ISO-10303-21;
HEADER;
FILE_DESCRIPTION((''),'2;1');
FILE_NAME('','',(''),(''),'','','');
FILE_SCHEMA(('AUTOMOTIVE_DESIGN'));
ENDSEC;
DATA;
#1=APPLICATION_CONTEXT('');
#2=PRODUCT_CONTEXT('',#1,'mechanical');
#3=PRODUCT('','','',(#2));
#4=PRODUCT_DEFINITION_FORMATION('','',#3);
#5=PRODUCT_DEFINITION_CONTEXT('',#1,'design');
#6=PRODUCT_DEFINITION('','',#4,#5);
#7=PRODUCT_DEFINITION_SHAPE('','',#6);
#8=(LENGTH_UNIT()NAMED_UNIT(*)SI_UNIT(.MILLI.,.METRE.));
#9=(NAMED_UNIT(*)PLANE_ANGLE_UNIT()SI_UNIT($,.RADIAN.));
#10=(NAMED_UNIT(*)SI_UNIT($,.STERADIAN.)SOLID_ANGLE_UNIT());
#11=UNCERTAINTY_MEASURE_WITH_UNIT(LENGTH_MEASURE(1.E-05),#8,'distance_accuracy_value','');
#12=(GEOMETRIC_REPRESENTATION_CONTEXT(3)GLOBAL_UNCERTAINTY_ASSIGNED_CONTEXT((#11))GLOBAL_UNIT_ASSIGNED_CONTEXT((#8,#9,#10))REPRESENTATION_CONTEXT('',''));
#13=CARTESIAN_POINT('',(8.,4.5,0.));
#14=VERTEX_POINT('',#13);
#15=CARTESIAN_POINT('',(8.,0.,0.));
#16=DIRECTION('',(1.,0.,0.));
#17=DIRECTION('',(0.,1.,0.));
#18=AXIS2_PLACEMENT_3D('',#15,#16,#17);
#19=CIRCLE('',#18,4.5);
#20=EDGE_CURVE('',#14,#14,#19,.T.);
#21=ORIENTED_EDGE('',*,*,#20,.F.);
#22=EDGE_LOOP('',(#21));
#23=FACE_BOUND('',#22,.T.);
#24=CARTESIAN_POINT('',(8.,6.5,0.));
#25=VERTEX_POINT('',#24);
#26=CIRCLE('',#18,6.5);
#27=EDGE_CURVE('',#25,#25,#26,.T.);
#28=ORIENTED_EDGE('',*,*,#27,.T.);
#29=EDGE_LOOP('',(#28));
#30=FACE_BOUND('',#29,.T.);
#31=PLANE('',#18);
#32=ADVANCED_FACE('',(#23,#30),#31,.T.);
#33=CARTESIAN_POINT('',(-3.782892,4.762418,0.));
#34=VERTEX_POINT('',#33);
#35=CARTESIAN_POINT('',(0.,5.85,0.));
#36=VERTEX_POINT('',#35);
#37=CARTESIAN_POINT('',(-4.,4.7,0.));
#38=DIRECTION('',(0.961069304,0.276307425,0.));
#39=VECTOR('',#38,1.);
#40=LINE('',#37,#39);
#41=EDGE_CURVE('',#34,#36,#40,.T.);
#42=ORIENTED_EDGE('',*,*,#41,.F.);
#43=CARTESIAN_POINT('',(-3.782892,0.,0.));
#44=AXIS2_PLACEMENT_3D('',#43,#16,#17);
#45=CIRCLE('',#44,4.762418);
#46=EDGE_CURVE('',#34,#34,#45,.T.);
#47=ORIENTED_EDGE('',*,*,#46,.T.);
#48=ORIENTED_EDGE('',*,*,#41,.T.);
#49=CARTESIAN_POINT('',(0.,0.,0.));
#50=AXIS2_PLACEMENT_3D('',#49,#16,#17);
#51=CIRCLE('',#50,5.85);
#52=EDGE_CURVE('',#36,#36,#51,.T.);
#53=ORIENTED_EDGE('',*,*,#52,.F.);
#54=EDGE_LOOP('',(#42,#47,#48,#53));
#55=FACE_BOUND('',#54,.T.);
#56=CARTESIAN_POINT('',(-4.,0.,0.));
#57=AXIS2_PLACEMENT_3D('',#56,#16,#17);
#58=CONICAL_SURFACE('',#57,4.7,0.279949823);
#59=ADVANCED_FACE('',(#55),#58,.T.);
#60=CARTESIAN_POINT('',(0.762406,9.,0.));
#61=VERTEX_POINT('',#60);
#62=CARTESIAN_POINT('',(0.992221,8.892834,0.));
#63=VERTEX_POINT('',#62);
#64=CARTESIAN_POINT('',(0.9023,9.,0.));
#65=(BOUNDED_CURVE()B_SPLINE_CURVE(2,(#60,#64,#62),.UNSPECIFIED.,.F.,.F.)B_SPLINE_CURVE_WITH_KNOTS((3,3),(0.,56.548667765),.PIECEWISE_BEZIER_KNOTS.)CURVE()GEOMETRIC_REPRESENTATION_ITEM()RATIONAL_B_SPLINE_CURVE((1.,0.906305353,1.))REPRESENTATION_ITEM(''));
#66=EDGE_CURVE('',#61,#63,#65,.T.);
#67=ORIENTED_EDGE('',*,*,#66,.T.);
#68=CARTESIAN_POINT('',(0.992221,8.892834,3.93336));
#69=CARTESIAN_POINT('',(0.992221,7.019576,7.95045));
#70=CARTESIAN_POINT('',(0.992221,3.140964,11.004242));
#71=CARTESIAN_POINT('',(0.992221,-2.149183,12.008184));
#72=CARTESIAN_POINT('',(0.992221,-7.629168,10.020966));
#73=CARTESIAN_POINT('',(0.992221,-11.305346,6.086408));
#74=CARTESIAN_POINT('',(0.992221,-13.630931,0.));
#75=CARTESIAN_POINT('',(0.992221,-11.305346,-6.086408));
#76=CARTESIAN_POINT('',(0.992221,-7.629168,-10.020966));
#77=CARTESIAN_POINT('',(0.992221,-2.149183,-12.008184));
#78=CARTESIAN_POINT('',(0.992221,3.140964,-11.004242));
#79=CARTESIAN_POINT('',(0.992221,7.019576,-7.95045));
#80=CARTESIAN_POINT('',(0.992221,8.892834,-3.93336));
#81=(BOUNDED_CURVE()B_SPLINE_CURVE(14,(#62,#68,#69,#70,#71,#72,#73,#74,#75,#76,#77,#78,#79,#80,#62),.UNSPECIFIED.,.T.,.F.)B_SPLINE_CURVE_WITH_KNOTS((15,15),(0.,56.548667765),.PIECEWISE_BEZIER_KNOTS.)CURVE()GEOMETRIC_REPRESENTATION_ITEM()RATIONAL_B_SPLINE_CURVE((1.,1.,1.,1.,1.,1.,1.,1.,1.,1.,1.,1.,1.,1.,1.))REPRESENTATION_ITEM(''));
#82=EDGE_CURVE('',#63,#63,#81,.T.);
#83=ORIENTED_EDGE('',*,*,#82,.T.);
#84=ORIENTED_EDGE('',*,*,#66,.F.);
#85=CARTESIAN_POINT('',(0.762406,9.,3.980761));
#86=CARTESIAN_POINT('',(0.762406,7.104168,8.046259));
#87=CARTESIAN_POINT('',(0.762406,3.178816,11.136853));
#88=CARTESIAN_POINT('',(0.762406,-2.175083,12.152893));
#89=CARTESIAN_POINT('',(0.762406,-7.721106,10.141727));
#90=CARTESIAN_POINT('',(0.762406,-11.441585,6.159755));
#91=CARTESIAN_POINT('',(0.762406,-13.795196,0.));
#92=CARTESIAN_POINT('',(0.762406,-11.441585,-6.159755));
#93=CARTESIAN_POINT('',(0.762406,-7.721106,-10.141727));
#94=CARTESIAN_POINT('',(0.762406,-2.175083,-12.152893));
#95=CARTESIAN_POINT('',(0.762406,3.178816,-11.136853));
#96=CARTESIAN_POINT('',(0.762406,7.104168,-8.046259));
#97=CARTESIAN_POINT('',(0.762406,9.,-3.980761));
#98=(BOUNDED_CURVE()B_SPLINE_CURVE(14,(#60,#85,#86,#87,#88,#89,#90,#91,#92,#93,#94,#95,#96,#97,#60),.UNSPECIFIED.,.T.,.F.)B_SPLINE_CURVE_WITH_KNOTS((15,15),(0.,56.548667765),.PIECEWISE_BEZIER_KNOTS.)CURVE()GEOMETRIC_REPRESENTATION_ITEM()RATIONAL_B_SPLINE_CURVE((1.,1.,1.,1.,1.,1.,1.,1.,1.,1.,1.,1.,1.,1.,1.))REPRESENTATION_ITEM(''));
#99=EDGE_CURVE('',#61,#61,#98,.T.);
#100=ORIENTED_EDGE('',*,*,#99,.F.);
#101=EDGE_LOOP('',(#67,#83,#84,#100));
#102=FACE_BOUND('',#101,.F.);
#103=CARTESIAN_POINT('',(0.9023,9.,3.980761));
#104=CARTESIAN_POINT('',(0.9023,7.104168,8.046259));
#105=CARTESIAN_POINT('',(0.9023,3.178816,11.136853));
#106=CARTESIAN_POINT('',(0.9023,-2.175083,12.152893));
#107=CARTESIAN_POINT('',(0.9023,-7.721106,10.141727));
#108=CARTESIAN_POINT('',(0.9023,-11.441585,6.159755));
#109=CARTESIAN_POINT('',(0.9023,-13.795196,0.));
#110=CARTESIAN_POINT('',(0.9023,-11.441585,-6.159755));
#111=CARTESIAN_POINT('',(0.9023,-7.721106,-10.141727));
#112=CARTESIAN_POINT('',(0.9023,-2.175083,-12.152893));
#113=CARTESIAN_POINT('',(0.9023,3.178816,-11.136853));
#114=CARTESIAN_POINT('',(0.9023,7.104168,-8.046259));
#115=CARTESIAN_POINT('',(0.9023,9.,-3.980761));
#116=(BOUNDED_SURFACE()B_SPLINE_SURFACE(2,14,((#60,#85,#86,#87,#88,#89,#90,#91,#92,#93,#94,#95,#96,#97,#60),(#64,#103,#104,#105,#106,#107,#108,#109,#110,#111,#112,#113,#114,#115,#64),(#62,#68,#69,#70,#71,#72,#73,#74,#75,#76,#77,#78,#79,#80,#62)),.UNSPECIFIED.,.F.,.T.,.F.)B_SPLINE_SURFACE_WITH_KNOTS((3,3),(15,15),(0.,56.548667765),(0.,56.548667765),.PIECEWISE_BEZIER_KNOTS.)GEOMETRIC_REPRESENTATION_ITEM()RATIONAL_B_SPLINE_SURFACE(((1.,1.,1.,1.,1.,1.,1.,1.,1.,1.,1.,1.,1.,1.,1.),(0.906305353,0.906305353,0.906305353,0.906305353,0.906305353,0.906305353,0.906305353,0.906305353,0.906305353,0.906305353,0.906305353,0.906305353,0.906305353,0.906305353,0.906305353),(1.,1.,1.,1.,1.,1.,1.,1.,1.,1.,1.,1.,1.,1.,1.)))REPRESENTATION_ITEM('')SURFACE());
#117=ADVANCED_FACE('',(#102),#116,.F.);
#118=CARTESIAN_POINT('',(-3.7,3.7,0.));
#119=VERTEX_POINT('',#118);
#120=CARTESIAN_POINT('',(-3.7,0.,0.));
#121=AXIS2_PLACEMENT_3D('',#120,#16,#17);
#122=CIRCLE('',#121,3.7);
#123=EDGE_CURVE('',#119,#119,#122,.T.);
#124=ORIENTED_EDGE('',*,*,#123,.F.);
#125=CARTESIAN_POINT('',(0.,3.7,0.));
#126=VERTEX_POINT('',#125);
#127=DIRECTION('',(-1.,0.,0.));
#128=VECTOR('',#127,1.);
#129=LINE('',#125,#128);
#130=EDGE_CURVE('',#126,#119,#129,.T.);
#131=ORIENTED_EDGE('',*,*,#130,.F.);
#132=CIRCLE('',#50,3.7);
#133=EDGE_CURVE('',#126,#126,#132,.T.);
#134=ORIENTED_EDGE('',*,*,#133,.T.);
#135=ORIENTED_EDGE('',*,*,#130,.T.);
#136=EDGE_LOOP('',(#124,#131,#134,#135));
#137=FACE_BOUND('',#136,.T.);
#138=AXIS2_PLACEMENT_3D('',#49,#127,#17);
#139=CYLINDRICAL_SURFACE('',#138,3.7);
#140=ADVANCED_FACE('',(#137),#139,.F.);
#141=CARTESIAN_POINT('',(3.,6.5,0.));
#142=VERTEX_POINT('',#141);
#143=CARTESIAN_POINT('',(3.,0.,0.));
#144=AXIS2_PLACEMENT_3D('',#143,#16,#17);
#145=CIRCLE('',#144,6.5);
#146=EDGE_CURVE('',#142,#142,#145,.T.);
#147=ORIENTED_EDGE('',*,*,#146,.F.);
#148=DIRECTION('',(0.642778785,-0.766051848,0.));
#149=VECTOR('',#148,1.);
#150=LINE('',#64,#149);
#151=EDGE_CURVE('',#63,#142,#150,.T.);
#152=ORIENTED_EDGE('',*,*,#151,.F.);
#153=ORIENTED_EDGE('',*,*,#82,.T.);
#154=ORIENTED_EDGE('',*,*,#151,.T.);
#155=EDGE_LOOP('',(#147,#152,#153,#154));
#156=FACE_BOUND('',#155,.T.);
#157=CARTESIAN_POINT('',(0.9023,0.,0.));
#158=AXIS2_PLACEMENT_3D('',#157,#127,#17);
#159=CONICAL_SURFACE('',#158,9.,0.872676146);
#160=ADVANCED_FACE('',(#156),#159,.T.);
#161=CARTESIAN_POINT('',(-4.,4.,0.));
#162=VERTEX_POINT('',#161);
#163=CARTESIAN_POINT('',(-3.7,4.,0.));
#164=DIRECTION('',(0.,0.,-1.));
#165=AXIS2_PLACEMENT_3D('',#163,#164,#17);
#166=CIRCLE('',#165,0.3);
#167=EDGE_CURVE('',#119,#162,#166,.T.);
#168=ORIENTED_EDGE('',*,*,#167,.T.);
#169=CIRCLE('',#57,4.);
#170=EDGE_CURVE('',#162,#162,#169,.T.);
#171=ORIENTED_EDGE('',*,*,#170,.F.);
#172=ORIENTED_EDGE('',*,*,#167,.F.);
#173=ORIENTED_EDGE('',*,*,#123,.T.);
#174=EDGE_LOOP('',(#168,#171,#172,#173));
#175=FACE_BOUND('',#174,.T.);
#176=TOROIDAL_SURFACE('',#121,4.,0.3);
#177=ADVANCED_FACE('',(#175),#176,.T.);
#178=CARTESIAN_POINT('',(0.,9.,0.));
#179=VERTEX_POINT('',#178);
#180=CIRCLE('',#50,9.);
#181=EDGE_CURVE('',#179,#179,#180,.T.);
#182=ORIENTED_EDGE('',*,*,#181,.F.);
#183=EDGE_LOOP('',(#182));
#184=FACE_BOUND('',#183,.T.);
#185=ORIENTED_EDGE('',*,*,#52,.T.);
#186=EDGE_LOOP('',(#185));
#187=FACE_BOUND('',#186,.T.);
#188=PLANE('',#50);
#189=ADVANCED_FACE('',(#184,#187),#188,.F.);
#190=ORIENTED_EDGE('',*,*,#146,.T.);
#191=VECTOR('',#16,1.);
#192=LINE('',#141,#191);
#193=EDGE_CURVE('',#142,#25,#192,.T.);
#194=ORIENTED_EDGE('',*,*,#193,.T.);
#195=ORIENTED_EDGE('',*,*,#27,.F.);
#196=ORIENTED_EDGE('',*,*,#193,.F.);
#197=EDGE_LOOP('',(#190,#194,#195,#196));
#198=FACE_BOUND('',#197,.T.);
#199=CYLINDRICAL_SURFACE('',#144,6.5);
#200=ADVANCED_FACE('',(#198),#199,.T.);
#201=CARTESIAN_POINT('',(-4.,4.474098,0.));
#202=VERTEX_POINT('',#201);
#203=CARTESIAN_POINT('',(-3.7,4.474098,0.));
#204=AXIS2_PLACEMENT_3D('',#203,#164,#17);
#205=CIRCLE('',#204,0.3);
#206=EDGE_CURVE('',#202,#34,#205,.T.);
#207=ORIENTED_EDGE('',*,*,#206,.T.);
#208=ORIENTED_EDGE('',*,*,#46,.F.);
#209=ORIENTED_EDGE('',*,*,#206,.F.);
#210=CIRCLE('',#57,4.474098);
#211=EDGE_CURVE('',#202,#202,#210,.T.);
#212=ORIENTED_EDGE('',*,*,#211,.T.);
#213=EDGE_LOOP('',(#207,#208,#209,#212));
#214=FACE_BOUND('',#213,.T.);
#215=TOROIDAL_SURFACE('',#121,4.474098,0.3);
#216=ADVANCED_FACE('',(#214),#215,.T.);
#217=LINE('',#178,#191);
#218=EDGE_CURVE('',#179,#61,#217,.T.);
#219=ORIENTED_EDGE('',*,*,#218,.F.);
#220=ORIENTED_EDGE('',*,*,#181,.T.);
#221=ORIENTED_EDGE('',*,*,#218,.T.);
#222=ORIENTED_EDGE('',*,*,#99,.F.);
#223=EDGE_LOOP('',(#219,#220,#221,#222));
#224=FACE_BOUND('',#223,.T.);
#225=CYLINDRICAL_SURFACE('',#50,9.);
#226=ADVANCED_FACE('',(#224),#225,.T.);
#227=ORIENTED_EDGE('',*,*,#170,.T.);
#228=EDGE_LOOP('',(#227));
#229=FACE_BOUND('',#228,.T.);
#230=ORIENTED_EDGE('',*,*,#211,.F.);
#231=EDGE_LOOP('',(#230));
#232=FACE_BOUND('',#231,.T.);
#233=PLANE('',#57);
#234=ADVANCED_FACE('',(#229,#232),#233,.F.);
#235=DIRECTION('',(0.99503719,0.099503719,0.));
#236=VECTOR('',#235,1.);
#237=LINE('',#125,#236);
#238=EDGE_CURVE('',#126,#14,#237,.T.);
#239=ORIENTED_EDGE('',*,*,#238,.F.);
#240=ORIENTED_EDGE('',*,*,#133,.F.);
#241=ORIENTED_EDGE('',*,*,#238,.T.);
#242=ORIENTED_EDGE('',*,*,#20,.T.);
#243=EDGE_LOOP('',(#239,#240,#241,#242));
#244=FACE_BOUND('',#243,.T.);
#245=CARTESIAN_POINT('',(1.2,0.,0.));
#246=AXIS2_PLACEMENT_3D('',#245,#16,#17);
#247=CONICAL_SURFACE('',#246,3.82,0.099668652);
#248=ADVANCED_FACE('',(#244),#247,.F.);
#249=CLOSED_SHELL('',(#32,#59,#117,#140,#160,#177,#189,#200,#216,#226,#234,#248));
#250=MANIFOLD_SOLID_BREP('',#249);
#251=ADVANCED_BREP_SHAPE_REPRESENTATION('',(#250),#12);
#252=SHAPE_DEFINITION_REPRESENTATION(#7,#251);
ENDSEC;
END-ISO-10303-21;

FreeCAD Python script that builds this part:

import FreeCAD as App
import Part
import Sketcher

V = App.Vector
Q = App.Units.Quantity


def edges_at(feature, points):
    """Names of the edges that pass closest to the given points."""
    edges = feature.Shape.Edges
    near = lambda p: min(range(len(edges)), key=lambda i: edges[i].distToShape(Part.Vertex(*p))[0])
    return sorted({f"Edge{near(p) + 1}" for p in points})


def add_polygon(sketch, points):
    """Adds a closed chain of lines whose ends are joined by coincident constraints."""
    first, n = sketch.GeometryCount, len(points)
    for a, b in zip(points, points[1:] + points[:1]):
        sketch.addGeometry(Part.LineSegment(App.Vector(*a, 0), App.Vector(*b, 0)), False)
    for i in range(n):
        sketch.addConstraint(Sketcher.Constraint("Coincident", first + i, 2, first + (i + 1) % n, 1))

doc = App.newDocument("Part")
body = doc.addObject("PartDesign::Body", "Body")

sketch1 = doc.addObject("Sketcher::SketchObject", "Sketch")
body.addObject(sketch1)
sketch1.AttachmentSupport = (doc.XY_Plane, [""])
sketch1.MapMode = "FlatFace"
add_polygon(sketch1, [(-4, 3.7), (0, 3.7), (8, 4.5), (8, 6.5), (3, 6.5), (0.9, 9), (0, 9), (0, 5.8), (-4, 4.7)])
sketch1.addConstraint([
    Sketcher.Constraint("Horizontal", 0),
    Sketcher.Constraint("Vertical", 2),
    Sketcher.Constraint("Horizontal", 3),
    Sketcher.Constraint("Horizontal", 5),
    Sketcher.Constraint("Vertical", 6),
    Sketcher.Constraint("Vertical", 8),
    Sketcher.Constraint("PointOnObject", 0, 2, -2),
    Sketcher.Constraint("PointOnObject", 5, 2, -2),
    Sketcher.Constraint("DistanceX", 0, 1, 0, 2, Q("4 mm")),
    Sketcher.Constraint("DistanceX", 3, 2, 3, 1, Q("5 mm")),
    Sketcher.Constraint("DistanceX", -1, 1, 1, 2, Q("8 mm")),
    Sketcher.Constraint("DistanceY", -1, 1, 4, 2, Q("9 mm")),
    Sketcher.Constraint("DistanceY", -1, 1, 0, 2, Q("3.7 mm")),
    Sketcher.Constraint("DistanceY", -1, 1, 1, 2, Q("4.5 mm")),
    Sketcher.Constraint("DistanceY", -1, 1, 2, 2, Q("6.5 mm")),
    Sketcher.Constraint("DistanceY", -1, 1, 7, 2, Q("4.7 mm")),
    Sketcher.Constraint("DistanceY", -1, 1, 6, 2, Q("5.85 mm")),
    Sketcher.Constraint("Angle", 4, Q("129.9993 deg")),
])
revolution = doc.addObject("PartDesign::Revolution", "Revolution")
body.addObject(revolution)
revolution.Profile = sketch1
revolution.ReferenceAxis = (sketch1, ["H_Axis"])
revolution.Angle = 360
doc.recompute()

fillet = doc.addObject("PartDesign::Fillet", "Fillet")
body.addObject(fillet)
fillet.Base = (revolution, edges_at(revolution, [(0.902, -9, 0), (-4, -4.7, 0), (-4, -3.7, 0)]))
fillet.Radius = 0.3

doc.recompute()
